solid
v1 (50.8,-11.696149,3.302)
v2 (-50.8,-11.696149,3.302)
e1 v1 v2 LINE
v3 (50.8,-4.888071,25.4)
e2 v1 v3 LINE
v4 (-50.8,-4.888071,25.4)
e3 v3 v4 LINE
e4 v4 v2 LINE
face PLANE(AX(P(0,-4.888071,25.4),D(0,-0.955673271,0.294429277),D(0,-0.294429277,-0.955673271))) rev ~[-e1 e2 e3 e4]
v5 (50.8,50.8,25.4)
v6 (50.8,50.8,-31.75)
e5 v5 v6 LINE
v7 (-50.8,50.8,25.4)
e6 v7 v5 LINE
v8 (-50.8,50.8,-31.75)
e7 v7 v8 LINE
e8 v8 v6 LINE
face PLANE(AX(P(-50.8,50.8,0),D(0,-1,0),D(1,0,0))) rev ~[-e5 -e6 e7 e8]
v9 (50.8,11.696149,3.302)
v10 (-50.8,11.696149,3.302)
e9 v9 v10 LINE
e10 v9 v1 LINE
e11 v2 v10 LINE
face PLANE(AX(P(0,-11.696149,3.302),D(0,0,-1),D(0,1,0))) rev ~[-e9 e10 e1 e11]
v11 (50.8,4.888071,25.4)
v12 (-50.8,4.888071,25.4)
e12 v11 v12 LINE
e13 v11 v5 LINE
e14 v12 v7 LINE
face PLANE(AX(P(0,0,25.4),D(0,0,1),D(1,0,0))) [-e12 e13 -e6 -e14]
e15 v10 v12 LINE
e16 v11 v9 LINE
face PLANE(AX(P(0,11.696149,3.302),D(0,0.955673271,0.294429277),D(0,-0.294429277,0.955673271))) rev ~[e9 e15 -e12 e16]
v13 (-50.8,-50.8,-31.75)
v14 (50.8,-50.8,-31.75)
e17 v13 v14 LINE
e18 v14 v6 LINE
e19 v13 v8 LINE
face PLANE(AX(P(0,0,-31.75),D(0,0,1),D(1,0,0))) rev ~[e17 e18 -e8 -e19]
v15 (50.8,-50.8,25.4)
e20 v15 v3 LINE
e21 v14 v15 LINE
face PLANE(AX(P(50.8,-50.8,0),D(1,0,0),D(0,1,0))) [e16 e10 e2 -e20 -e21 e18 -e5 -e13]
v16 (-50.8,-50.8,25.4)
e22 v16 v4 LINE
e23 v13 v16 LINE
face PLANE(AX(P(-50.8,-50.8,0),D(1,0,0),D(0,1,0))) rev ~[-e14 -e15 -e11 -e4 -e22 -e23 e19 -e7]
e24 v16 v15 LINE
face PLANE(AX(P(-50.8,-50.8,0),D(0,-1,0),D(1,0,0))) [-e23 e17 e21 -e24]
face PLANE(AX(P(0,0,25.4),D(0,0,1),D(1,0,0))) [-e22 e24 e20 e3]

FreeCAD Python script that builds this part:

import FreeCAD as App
import Part
import Sketcher
from FreeCAD import Vector
Q = App.Units.Quantity


def add_polygon(sketch, points):
    """Adds a closed chain of lines whose ends are joined by coincident constraints."""
    first, n = sketch.GeometryCount, len(points)
    for a, b in zip(points, points[1:] + points[:1]):
        sketch.addGeometry(Part.LineSegment(App.Vector(*a, 0), App.Vector(*b, 0)), False)
    for i in range(n):
        sketch.addConstraint(Sketcher.Constraint("Coincident", first + i, 2, first + (i + 1) % n, 1))

doc = App.newDocument("Part")
body = doc.addObject("PartDesign::Body", "Body")

# Sketch on XY plane
sketch1 = body.newObject("Sketcher::SketchObject", "Sketch")
sketch1.AttachmentSupport = (doc.getObject("XY_Plane"), [""])
sketch1.MapMode = "FlatFace"
add_polygon(sketch1, [(-51, 51), (-51, -51), (51, -51), (51, 51)])  # lines 0-3
sketch1.addConstraint(Sketcher.Constraint("Vertical", 0))
sketch1.addConstraint(Sketcher.Constraint("Horizontal", 1))
sketch1.addConstraint(Sketcher.Constraint("Vertical", 2))
sketch1.addConstraint(Sketcher.Constraint("Horizontal", 3))
sketch1.addConstraint(Sketcher.Constraint("Symmetric", 0, 2, 2, 2, -1, 1))
sketch1.addConstraint(Sketcher.Constraint("Equal", 3, 0))
sketch1.addConstraint(Sketcher.Constraint("DistanceX", 1, 1, 1, 2, Q("4 in")))
pad1 = body.newObject("PartDesign::Pad", "Pad")
pad1.Profile = sketch1
pad1.Type = "TwoLengths"
pad1.Length = Q("1 in")
pad1.Length2 = Q("1.25 in")

# Sketch on YZ plane
sketch2 = body.newObject("Sketcher::SketchObject", "Sketch001")
sketch2.AttachmentSupport = (doc.getObject("YZ_Plane"), [""])
sketch2.MapMode = "FlatFace"
add_polygon(sketch2, [(-5, 25), (-12, 3), (12, 3), (5, 25)])  # lines 0-3
sketch2.addConstraint(Sketcher.Constraint("Horizontal", 1))
sketch2.addConstraint(Sketcher.Constraint("Horizontal", 3))
sketch2.addConstraint(Sketcher.Constraint("Equal", 0, 2))
sketch2.addConstraint(Sketcher.Constraint("DistanceY", -1, 1, 2, 2, Q("1 in")))
sketch2.addConstraint(Sketcher.Constraint("DistanceY", -1, 1, 0, 2, Q("0.13 in")))
sketch2.addConstraint(Sketcher.Constraint("DistanceX", 1, 1, 1, 2, 23.392298))
sketch2.addConstraint(Sketcher.Constraint("DistanceX", 3, 2, 3, 1, 9.776142))
sketch2.addConstraint(Sketcher.Constraint("DistanceX", 0, 2, -1, 1, 11.696149))
pocket1 = body.newObject("PartDesign::Pocket", "Pocket")
pocket1.Profile = sketch2
pocket1.Type = "ThroughAll"
pocket1.Midplane = True

doc.recompute()
